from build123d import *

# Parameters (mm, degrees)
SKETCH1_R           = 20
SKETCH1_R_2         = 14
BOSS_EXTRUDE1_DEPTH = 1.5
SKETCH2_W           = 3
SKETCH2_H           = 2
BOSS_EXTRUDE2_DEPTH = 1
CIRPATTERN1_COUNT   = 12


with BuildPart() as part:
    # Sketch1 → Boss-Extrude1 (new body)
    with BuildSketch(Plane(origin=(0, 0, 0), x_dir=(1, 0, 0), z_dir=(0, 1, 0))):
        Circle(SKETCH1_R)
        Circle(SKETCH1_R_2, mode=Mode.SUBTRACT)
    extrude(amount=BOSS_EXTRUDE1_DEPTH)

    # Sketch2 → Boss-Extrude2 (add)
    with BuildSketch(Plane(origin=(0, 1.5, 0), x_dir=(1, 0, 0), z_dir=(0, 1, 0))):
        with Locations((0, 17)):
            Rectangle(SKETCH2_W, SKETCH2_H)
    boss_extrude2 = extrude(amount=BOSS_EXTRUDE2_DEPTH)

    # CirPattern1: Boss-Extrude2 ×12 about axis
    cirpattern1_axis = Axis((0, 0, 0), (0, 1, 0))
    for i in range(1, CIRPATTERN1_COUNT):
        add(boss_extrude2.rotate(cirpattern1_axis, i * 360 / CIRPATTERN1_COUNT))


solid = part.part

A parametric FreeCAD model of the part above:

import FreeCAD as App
import Part
import Sketcher
from FreeCAD import Vector
Q = App.Units.Quantity

doc = App.newDocument("Part")
body = doc.addObject("PartDesign::Body", "Body")

sketch1 = body.newObject("Sketcher::SketchObject", "Sketch")
sketch1.AttachmentSupport = (doc.getObject("XZ_Plane"), [""])
sketch1.MapMode = "FlatFace"
sketch1.addGeometry([
    Part.Circle(Vector(0, 0, 0), Vector(0, 0, 1), 20),
    Part.Circle(Vector(0, 0, 0), Vector(0, 0, 1), 14),
], False)
sketch1.addConstraint([
    Sketcher.Constraint("Coincident", 0, 3, -1, 1),
    Sketcher.Constraint("Coincident", 1, 3, -1, 1),
    Sketcher.Constraint("Diameter", 0, Q("40 mm")),
    Sketcher.Constraint("Diameter", 1, Q("28 mm")),
])
pad1 = body.newObject("PartDesign::Pad", "Pad")
pad1.Profile = sketch1
pad1.Length = 1.5
pad1.Reversed = True

sketch2 = body.newObject("Sketcher::SketchObject", "Sketch001")
sketch2.AttachmentSupport = (doc.getObject("XZ_Plane"), [""])
sketch2.MapMode = "FlatFace"
sketch2.AttachmentOffset = App.Placement(Vector(0, 0, -1.5), App.Rotation())
sketch2.addGeometry([
    Part.LineSegment(Vector(-1.5, -18, 0), Vector(-1.5, -16, 0)),
    Part.LineSegment(Vector(-1.5, -16, 0), Vector(1.5, -16, 0)),
    Part.LineSegment(Vector(1.5, -16, 0), Vector(1.5, -18, 0)),
    Part.LineSegment(Vector(1.5, -18, 0), Vector(-1.5, -18, 0)),
], False)
sketch2.addConstraint([
    Sketcher.Constraint("Coincident", 0, 2, 1, 1),
    Sketcher.Constraint("Coincident", 1, 2, 2, 1),
    Sketcher.Constraint("Coincident", 2, 2, 3, 1),
    Sketcher.Constraint("Coincident", 3, 2, 0, 1),
    Sketcher.Constraint("Vertical", 0),
    Sketcher.Constraint("Horizontal", 1),
    Sketcher.Constraint("Vertical", 2),
    Sketcher.Constraint("Horizontal", 3),
    Sketcher.Constraint("DistanceX", 1, 1, 1, 2, Q("3 mm")),
    Sketcher.Constraint("DistanceY", 0, 1, 0, 2, Q("2 mm")),
    Sketcher.Constraint("DistanceY", 0, 2, -1, 1, Q("16 mm")),
    Sketcher.Constraint("DistanceX", 0, 2, -1, 1, Q("1.5 mm")),
])
pad2 = body.newObject("PartDesign::Pad", "Pad001")
pad2.Profile = sketch2
pad2.Length = 1
pad2.Reversed = True
doc.recompute()

polarpattern = body.newObject("PartDesign::PolarPattern", "PolarPattern")
polarpattern.Originals = [pad2]
polarpattern.Axis = (doc.getObject("Y_Axis"), [""])
polarpattern.Angle = 360
polarpattern.Occurrences = 12
body.Tip = polarpattern

doc.recompute()
